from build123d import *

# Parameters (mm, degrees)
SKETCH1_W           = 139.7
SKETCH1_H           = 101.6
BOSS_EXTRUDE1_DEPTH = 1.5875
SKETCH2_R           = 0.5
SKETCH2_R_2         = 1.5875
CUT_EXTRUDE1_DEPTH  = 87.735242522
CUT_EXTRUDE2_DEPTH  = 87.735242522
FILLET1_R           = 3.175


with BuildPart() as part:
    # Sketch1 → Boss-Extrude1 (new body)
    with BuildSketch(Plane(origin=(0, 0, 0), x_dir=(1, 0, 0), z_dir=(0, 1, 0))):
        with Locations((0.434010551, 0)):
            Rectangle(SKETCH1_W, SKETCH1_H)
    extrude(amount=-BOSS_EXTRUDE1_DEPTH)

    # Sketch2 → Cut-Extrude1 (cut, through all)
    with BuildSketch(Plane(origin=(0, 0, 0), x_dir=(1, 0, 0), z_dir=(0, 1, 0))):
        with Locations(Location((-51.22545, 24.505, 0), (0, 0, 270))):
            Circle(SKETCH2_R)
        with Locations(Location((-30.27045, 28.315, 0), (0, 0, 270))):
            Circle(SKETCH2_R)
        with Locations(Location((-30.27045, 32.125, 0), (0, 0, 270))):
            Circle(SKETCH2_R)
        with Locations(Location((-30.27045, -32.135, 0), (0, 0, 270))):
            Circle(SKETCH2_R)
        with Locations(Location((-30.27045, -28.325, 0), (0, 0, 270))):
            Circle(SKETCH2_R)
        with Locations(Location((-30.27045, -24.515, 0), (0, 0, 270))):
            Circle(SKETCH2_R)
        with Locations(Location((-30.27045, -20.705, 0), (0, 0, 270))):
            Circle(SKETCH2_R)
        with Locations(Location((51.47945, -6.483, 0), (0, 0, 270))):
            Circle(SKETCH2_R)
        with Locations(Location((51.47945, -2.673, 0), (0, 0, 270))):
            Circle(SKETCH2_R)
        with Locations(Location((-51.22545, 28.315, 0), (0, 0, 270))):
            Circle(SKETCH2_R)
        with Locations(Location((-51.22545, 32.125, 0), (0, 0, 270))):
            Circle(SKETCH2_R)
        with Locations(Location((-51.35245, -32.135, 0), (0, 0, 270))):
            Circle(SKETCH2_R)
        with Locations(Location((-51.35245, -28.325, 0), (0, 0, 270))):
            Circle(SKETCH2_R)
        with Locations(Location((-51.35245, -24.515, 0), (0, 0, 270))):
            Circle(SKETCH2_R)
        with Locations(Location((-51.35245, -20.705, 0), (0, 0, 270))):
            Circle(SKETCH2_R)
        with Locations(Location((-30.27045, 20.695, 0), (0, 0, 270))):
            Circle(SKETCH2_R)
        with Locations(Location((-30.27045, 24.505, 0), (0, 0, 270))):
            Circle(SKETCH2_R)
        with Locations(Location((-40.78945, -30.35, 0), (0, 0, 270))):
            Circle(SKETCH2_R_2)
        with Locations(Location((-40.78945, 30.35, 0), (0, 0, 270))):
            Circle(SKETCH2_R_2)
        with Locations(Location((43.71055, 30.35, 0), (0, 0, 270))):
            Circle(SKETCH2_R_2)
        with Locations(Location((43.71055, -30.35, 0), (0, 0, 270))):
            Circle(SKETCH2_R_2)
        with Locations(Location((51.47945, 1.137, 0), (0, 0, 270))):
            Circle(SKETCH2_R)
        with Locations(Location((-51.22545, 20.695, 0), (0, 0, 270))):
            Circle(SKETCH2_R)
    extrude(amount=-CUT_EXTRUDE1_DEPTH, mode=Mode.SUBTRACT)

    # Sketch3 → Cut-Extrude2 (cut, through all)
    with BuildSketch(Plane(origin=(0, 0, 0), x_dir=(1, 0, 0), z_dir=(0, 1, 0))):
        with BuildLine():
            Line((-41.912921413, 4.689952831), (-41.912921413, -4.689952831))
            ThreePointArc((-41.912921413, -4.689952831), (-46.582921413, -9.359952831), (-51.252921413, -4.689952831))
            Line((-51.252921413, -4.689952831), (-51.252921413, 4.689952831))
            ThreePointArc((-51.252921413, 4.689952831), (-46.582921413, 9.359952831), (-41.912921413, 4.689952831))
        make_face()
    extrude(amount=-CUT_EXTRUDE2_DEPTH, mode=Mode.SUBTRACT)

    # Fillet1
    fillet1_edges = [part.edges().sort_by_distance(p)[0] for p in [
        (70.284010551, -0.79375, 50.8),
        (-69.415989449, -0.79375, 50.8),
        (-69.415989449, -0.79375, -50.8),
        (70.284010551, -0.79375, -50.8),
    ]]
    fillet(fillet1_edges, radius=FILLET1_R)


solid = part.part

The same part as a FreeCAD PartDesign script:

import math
import FreeCAD as App
import Part
import Sketcher

V = App.Vector
Q = App.Units.Quantity


def edges_at(feature, points):
    """Names of the edges that pass closest to the given points."""
    edges = feature.Shape.Edges
    near = lambda p: min(range(len(edges)), key=lambda i: edges[i].distToShape(Part.Vertex(*p))[0])
    return sorted({f"Edge{near(p) + 1}" for p in points})

doc = App.newDocument("Part")
body = doc.addObject("PartDesign::Body", "Body")

sketch1 = body.newObject("Sketcher::SketchObject", "Sketch")
sketch1.AttachmentSupport = (doc.getObject("XZ_Plane"), [""])
sketch1.MapMode = "FlatFace"
sketch1.addGeometry([
    Part.LineSegment(V(-69.415989, -50.8, 0), V(-69.415989, 50.8, 0)),
    Part.LineSegment(V(-69.415989, 50.8, 0), V(70.284011, 50.8, 0)),
    Part.LineSegment(V(70.284011, 50.8, 0), V(70.284011, -50.8, 0)),
    Part.LineSegment(V(70.284011, -50.8, 0), V(-69.415989, -50.8, 0)),
], False)
sketch1.addConstraint([
    Sketcher.Constraint("Coincident", 0, 2, 1, 1),
    Sketcher.Constraint("Coincident", 1, 2, 2, 1),
    Sketcher.Constraint("Coincident", 2, 2, 3, 1),
    Sketcher.Constraint("Coincident", 3, 2, 0, 1),
    Sketcher.Constraint("Vertical", 0),
    Sketcher.Constraint("Horizontal", 1),
    Sketcher.Constraint("Vertical", 2),
    Sketcher.Constraint("Horizontal", 3),
    Sketcher.Constraint("DistanceY", 0, 1, 0, 2, Q("4 in")),
    Sketcher.Constraint("DistanceX", 1, 1, 1, 2, Q("5.5 in")),
    Sketcher.Constraint("DistanceY", -1, 1, 0, 2, Q("2 in")),
    Sketcher.Constraint("DistanceX", 0, 2, -1, 1, Q("69.415989 mm")),
])
pad1 = body.newObject("PartDesign::Pad", "Pad")
pad1.Profile = sketch1
pad1.Length = Q("0.0625 in")

sketch2 = body.newObject("Sketcher::SketchObject", "Sketch001")
sketch2.AttachmentSupport = (doc.getObject("XZ_Plane"), [""])
sketch2.MapMode = "FlatFace"
sketch2.addGeometry([
    Part.Circle(V(-51.22545, -24.505, 0), V(0, 0, 1), 0.5),
    Part.Circle(V(-30.27045, -28.315, 0), V(0, 0, 1), 0.5),
    Part.Circle(V(-30.27045, -32.125, 0), V(0, 0, 1), 0.5),
    Part.Circle(V(-30.27045, 32.135, 0), V(0, 0, 1), 0.5),
    Part.Circle(V(-30.27045, 28.325, 0), V(0, 0, 1), 0.5),
    Part.Circle(V(-30.27045, 24.515, 0), V(0, 0, 1), 0.5),
    Part.Circle(V(-30.27045, 20.705, 0), V(0, 0, 1), 0.5),
    Part.Circle(V(51.47945, 6.483, 0), V(0, 0, 1), 0.5),
    Part.Circle(V(51.47945, 2.673, 0), V(0, 0, 1), 0.5),
    Part.Circle(V(-51.22545, -28.315, 0), V(0, 0, 1), 0.5),
    Part.Circle(V(-51.22545, -32.125, 0), V(0, 0, 1), 0.5),
    Part.Circle(V(-51.35245, 32.135, 0), V(0, 0, 1), 0.5),
    Part.Circle(V(-51.35245, 28.325, 0), V(0, 0, 1), 0.5),
    Part.Circle(V(-51.35245, 24.515, 0), V(0, 0, 1), 0.5),
    Part.Circle(V(-51.35245, 20.705, 0), V(0, 0, 1), 0.5),
    Part.Circle(V(-30.27045, -20.695, 0), V(0, 0, 1), 0.5),
    Part.Circle(V(-30.27045, -24.505, 0), V(0, 0, 1), 0.5),
    Part.Circle(V(-40.78945, 30.35, 0), V(0, 0, 1), 1.5875),
    Part.Circle(V(-40.78945, -30.35, 0), V(0, 0, 1), 1.5875),
    Part.Circle(V(43.71055, -30.35, 0), V(0, 0, 1), 1.5875),
    Part.Circle(V(43.71055, 30.35, 0), V(0, 0, 1), 1.5875),
    Part.Circle(V(51.47945, -1.137, 0), V(0, 0, 1), 0.5),
    Part.Circle(V(-51.22545, -20.695, 0), V(0, 0, 1), 0.5),
], False)
sketch2.addConstraint([
    Sketcher.Constraint("Equal", 0, 1),
    Sketcher.Constraint("Equal", 1, 2),
    Sketcher.Constraint("Equal", 2, 3),
    Sketcher.Constraint("Equal", 3, 4),
    Sketcher.Constraint("Equal", 4, 5),
    Sketcher.Constraint("Equal", 5, 6),
    Sketcher.Constraint("Equal", 6, 7),
    Sketcher.Constraint("Equal", 7, 8),
    Sketcher.Constraint("Equal", 8, 9),
    Sketcher.Constraint("Equal", 9, 10),
    Sketcher.Constraint("Equal", 10, 11),
    Sketcher.Constraint("Equal", 11, 12),
    Sketcher.Constraint("Equal", 12, 13),
    Sketcher.Constraint("Equal", 13, 14),
    Sketcher.Constraint("Equal", 14, 15),
    Sketcher.Constraint("Equal", 15, 16),
    Sketcher.Constraint("Equal", 17, 18),
    Sketcher.Constraint("Equal", 18, 19),
    Sketcher.Constraint("Equal", 19, 20),
    Sketcher.Constraint("Equal", 16, 21),
    Sketcher.Constraint("Equal", 21, 22),
    Sketcher.Constraint("Symmetric", 17, 3, 18, 3, -1),
    Sketcher.Constraint("Symmetric", 19, 3, 20, 3, -1),
    Sketcher.Constraint("Horizontal", 1, 3, 9, 3),
    Sketcher.Constraint("Horizontal", 2, 3, 10, 3),
    Sketcher.Constraint("Horizontal", 3, 3, 11, 3),
    Sketcher.Constraint("Horizontal", 4, 3, 12, 3),
    Sketcher.Constraint("Horizontal", 5, 3, 13, 3),
    Sketcher.Constraint("Horizontal", 6, 3, 14, 3),
    Sketcher.Constraint("Horizontal", 0, 3, 16, 3),
    Sketcher.Constraint("Horizontal", 18, 3, 19, 3),
    Sketcher.Constraint("Horizontal", 15, 3, 22, 3),
    Sketcher.Constraint("Vertical", 1, 3, 2, 3),
    Sketcher.Constraint("Vertical", 2, 3, 3, 3),
    Sketcher.Constraint("Vertical", 3, 3, 4, 3),
    Sketcher.Constraint("Vertical", 4, 3, 5, 3),
    Sketcher.Constraint("Vertical", 5, 3, 6, 3),
    Sketcher.Constraint("Vertical", 7, 3, 8, 3),
    Sketcher.Constraint("Vertical", 0, 3, 9, 3),
    Sketcher.Constraint("Vertical", 9, 3, 10, 3),
    Sketcher.Constraint("Vertical", 11, 3, 12, 3),
    Sketcher.Constraint("Vertical", 12, 3, 13, 3),
    Sketcher.Constraint("Vertical", 13, 3, 14, 3),
    Sketcher.Constraint("Vertical", 6, 3, 15, 3),
    Sketcher.Constraint("Vertical", 15, 3, 16, 3),
    Sketcher.Constraint("Vertical", 8, 3, 21, 3),
    Sketcher.Constraint("Vertical", 10, 3, 22, 3),
    Sketcher.Constraint("Diameter", 17, Q("0.125 in")),
    Sketcher.Constraint("DistanceY", 2, 3, 0, 3, Q("0.3 in")),
    Sketcher.Constraint("DistanceY", 5, 3, 3, 3, Q("0.3 in")),
    Sketcher.Constraint("DistanceY", 6, 3, 4, 3, Q("0.3 in")),
    Sketcher.Constraint("DistanceY", 1, 3, 15, 3, Q("0.3 in")),
    Sketcher.Constraint("DistanceY", 21, 3, 7, 3, Q("0.3 in")),
    Sketcher.Constraint("Diameter", 0, Q("1 mm")),
    Sketcher.Constraint("DistanceY", 1, 3, 0, 3, Q("0.15 in")),
    Sketcher.Constraint("DistanceY", 4, 3, 3, 3, Q("0.15 in")),
    Sketcher.Constraint("DistanceY", 1, 3, 7, 3, Q("1.37 in")),
    Sketcher.Constraint("DistanceY", 8, 3, 7, 3, Q("0.15 in")),
    Sketcher.Constraint("DistanceX", 11, 3, 3, 3, Q("0.83 in")),
    Sketcher.Constraint("DistanceX", 0, 3, 1, 3, Q("0.825 in")),
    Sketcher.Constraint("DistanceX", 6, 3, 7, 3, Q("3.2185 in")),
    Sketcher.Constraint("DistanceY", 0, 3, -1, 1, Q("24.505 mm")),
    Sketcher.Constraint("DistanceY", -1, 1, 3, 3, Q("32.135 mm")),
    Sketcher.Constraint("DistanceY", -1, 1, 17, 3, Q("30.35 mm")),
    Sketcher.Constraint("DistanceX", 17, 3, 3, 3, Q("10.519 mm")),
    Sketcher.Constraint("DistanceX", 19, 3, 8, 3, Q("7.7689 mm")),
    Sketcher.Constraint("DistanceX", 0, 3, -1, 1, Q("51.22545 mm")),
])
pocket1 = body.newObject("PartDesign::Pocket", "Pocket")
pocket1.Profile = sketch2
pocket1.Type = "ThroughAll"
pocket1.Reversed = True

sketch3 = body.newObject("Sketcher::SketchObject", "Sketch002")
sketch3.AttachmentSupport = (doc.getObject("XZ_Plane"), [""])
sketch3.MapMode = "FlatFace"
sketch3.addGeometry([
    Part.LineSegment(V(-41.912921, 4.689953, 0), V(-41.912921, -4.689953, 0)),
    Part.ArcOfCircle(Part.Circle(V(-46.582921, -4.689953, 0), V(0, 0, 1), 4.67), math.radians(180), math.radians(360)),
    Part.LineSegment(V(-51.252921, -4.689953, 0), V(-51.252921, 4.689953, 0)),
    Part.ArcOfCircle(Part.Circle(V(-46.582921, 4.689953, 0), V(0, 0, 1), 4.67), math.radians(0), math.radians(180)),
], False)
sketch3.addConstraint([
    Sketcher.Constraint("Tangent", 0, 2, 1, 2),
    Sketcher.Constraint("Tangent", 1, 1, 2, 1),
    Sketcher.Constraint("Tangent", 2, 2, 3, 2),
    Sketcher.Constraint("Tangent", 3, 1, 0, 1),
    Sketcher.Constraint("Vertical", 0),
    Sketcher.Constraint("Vertical", 2),
    Sketcher.Constraint("Radius", 1, Q("4.67 mm")),
    Sketcher.Constraint("DistanceY", 0, 2, 0, 1, Q("9.379906 mm")),
    Sketcher.Constraint("DistanceX", 1, 3, -1, 1, Q("46.582921 mm")),
    Sketcher.Constraint("DistanceY", 1, 3, -1, 1, Q("4.689953 mm")),
])
pocket2 = body.newObject("PartDesign::Pocket", "Pocket001")
pocket2.Profile = sketch3
pocket2.Type = "ThroughAll"
pocket2.Reversed = True
doc.recompute()

fillet = body.newObject("PartDesign::Fillet", "Fillet")
fillet.Base = (pocket2, edges_at(pocket2, [
    (70.284, -0.794, 50.8),
    (-69.416, -0.794, 50.8),
    (-69.416, -0.794, -50.8),
    (70.284, -0.794, -50.8),
]))
fillet.Radius = Q("0.125 in")

doc.recompute()
